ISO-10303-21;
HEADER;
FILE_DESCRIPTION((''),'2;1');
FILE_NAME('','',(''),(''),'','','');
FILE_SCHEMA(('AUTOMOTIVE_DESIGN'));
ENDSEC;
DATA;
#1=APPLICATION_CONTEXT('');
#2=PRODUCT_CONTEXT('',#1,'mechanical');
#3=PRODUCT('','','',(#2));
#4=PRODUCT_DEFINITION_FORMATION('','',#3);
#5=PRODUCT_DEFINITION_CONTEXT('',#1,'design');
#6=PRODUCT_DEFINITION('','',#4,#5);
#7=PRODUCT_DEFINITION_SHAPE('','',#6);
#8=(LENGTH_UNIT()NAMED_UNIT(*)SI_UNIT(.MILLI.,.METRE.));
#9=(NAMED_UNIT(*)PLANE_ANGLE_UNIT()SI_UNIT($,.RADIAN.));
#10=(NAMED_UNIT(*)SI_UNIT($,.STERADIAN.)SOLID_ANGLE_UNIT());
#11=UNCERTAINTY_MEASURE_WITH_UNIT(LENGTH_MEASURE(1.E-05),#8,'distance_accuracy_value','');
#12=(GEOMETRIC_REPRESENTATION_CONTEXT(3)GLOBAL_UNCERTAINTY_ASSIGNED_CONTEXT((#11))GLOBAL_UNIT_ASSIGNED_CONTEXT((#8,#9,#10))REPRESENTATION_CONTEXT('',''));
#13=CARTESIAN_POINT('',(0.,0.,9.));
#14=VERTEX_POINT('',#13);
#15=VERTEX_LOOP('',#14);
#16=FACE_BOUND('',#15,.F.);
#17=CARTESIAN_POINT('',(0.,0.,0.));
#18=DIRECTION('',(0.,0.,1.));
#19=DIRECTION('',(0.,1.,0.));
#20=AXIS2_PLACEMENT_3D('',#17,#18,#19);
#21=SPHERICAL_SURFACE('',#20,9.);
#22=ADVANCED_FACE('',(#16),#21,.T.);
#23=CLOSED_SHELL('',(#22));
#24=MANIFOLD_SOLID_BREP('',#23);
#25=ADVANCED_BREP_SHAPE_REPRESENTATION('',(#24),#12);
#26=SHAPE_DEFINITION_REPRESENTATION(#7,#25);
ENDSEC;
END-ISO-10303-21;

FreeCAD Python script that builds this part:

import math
import FreeCAD as App
import Part
import Sketcher
from FreeCAD import Vector
Q = App.Units.Quantity

doc = App.newDocument("Part")
body = doc.addObject("PartDesign::Body", "Body")

# Sketch on YZ plane
sketch1 = body.newObject("Sketcher::SketchObject", "Sketch")
sketch1.AttachmentSupport = (doc.getObject("YZ_Plane"), [""])
sketch1.MapMode = "FlatFace"
sketch1.addGeometry([
    Part.ArcOfCircle(Part.Circle(Vector(0, 0, 0), Vector(0, 0, 1), 9), math.radians(-90), math.radians(90)),
    Part.LineSegment(Vector(0, 9, 0), Vector(0, -9, 0)),
], False)
sketch1.addConstraint([
    Sketcher.Constraint("Coincident", 0, 1, 1, 2),
    Sketcher.Constraint("Coincident", 1, 1, 0, 2),
    Sketcher.Constraint("Vertical", 1),
    Sketcher.Constraint("Coincident", 0, 3, -1, 1),
    Sketcher.Constraint("PointOnObject", 0, 1, -2),
    Sketcher.Constraint("Radius", 0, Q("9 mm")),
])
revolution = body.newObject("PartDesign::Revolution", "Revolution")
revolution.Profile = sketch1
revolution.ReferenceAxis = (sketch1, ["V_Axis"])
revolution.Angle = 360

doc.recompute()
